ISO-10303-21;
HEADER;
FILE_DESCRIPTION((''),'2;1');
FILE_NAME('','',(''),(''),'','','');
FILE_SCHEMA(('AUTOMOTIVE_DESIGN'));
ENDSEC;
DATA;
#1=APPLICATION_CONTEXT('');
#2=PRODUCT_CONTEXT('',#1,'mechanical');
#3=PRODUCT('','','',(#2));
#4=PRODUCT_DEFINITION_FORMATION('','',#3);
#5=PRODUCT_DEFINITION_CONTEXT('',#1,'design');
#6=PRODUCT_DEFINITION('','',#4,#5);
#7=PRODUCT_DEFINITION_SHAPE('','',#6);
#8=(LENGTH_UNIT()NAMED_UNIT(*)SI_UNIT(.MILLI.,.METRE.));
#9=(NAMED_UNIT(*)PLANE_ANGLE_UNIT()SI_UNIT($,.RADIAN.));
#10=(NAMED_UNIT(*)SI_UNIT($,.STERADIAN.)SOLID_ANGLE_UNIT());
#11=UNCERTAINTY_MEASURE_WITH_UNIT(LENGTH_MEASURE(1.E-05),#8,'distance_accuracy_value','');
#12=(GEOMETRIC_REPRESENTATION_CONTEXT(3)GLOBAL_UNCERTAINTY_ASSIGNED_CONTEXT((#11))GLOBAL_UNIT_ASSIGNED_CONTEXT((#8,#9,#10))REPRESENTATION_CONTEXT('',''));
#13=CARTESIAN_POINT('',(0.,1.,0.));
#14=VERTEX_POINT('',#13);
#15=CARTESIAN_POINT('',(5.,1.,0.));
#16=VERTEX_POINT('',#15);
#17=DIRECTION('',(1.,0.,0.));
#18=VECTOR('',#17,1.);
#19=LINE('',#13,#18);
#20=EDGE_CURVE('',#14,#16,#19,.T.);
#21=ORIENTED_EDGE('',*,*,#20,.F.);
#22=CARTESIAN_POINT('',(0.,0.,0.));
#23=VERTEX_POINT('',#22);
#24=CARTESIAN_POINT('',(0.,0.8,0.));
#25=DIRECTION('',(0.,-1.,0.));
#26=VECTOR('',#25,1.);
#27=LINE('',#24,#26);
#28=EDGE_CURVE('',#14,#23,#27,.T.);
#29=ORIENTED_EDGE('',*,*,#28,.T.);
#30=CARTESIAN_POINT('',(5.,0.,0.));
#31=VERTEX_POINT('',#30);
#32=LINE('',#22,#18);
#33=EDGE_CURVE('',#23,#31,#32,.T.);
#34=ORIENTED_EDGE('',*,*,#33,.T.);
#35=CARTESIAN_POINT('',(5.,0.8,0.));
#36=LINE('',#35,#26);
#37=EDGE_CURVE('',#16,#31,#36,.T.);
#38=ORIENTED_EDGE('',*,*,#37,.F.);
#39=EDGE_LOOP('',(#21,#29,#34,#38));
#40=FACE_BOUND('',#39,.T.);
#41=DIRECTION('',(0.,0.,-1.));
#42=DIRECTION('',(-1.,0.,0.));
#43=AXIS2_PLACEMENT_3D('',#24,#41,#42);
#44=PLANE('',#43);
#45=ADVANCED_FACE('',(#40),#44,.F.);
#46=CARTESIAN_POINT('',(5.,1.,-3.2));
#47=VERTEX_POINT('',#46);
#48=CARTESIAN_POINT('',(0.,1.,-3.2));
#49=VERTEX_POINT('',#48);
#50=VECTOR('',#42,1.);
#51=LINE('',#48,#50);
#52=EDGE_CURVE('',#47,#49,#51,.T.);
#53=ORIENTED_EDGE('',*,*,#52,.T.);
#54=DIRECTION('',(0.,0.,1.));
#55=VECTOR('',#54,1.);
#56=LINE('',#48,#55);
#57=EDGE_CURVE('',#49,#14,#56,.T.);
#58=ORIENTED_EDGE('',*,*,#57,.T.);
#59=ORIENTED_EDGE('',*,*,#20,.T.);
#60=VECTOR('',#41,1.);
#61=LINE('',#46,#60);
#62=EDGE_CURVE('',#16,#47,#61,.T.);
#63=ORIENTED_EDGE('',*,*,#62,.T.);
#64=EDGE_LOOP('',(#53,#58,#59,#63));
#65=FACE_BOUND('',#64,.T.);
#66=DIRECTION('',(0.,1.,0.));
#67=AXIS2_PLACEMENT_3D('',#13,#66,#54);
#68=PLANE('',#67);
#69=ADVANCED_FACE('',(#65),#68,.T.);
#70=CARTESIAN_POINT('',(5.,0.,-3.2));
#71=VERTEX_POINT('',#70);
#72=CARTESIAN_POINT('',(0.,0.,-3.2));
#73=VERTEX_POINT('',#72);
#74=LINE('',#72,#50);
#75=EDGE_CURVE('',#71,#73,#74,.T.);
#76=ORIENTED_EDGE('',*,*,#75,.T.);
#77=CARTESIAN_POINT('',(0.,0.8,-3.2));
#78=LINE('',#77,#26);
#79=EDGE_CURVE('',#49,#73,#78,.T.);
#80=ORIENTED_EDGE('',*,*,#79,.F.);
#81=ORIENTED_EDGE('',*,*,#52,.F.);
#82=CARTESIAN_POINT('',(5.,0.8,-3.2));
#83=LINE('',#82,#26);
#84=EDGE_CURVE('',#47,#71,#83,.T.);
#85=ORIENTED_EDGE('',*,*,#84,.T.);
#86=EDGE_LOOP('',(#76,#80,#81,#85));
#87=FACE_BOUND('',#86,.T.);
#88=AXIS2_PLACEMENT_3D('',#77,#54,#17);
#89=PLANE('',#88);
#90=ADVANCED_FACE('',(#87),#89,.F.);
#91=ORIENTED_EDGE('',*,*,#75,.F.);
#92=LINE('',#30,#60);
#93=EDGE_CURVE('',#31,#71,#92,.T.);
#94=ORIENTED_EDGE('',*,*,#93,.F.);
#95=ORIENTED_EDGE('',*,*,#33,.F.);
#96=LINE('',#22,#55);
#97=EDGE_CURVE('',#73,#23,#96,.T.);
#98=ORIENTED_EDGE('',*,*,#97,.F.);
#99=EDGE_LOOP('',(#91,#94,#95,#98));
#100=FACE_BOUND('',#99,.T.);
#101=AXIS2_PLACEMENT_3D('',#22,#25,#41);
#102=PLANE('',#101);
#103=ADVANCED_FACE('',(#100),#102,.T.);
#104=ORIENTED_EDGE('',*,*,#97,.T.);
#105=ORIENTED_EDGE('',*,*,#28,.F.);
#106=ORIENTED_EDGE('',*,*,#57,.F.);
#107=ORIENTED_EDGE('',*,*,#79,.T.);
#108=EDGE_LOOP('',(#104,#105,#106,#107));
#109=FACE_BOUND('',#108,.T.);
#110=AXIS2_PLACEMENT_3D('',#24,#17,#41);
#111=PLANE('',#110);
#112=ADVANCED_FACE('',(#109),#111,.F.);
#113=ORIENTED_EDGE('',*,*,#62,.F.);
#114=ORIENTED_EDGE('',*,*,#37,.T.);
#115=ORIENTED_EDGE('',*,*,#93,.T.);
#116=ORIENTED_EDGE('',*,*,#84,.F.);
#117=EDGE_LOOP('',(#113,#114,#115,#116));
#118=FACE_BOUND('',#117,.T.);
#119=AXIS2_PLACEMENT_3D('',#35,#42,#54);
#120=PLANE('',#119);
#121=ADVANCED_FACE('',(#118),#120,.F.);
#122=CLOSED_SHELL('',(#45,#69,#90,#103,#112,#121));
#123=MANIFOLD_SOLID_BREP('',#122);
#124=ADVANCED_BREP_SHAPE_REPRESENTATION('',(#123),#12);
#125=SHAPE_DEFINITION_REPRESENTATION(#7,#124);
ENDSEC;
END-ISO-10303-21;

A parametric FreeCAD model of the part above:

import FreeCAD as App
import Part
import Sketcher

V = App.Vector


def add_polygon(sketch, points):
    """Adds a closed chain of lines whose ends are joined by coincident constraints."""
    first, n = sketch.GeometryCount, len(points)
    for a, b in zip(points, points[1:] + points[:1]):
        sketch.addGeometry(Part.LineSegment(App.Vector(*a, 0), App.Vector(*b, 0)), False)
    for i in range(n):
        sketch.addConstraint(Sketcher.Constraint("Coincident", first + i, 2, first + (i + 1) % n, 1))

doc = App.newDocument("Part")
body = doc.addObject("PartDesign::Body", "Body")

sketch1 = body.newObject("Sketcher::SketchObject", "Sketch")
sketch1.AttachmentSupport = (doc.getObject("XZ_Plane"), [""])
sketch1.MapMode = "FlatFace"
add_polygon(sketch1, [(0, -3.2), (0, 0), (5, 0), (5, -3.2)])
sketch1.addConstraint(Sketcher.Constraint("Vertical", 0))
sketch1.addConstraint(Sketcher.Constraint("Horizontal", 1))
sketch1.addConstraint(Sketcher.Constraint("Vertical", 2))
sketch1.addConstraint(Sketcher.Constraint("Horizontal", 3))
sketch1.addConstraint(Sketcher.Constraint("Coincident", 0, 2, -1, 1))
sketch1.addConstraint(Sketcher.Constraint("DistanceX", 1, 1, 1, 2, 5.0))
sketch1.addConstraint(Sketcher.Constraint("DistanceY", 0, 1, 0, 2, 3.2))
pad1 = body.newObject("PartDesign::Pad", "Pad")
pad1.Profile = sketch1
pad1.Length = 0.8
pad1.Reversed = True

sketch2 = body.newObject("Sketcher::SketchObject", "Sketch001")
sketch2.AttachmentSupport = (doc.getObject("XZ_Plane"), [""])
sketch2.MapMode = "FlatFace"
sketch2.AttachmentOffset = App.Placement(V(0, 0, -0.8), App.Rotation())
add_polygon(sketch2, [(0, -3.2), (0, 0), (5, 0), (5, -3.2)])
sketch2.addConstraint(Sketcher.Constraint("Vertical", 0))
sketch2.addConstraint(Sketcher.Constraint("Horizontal", 1))
sketch2.addConstraint(Sketcher.Constraint("Vertical", 2))
sketch2.addConstraint(Sketcher.Constraint("Horizontal", 3))
sketch2.addConstraint(Sketcher.Constraint("Coincident", 0, 2, -1, 1))
sketch2.addConstraint(Sketcher.Constraint("DistanceX", 1, 1, 1, 2, 5.0))
sketch2.addConstraint(Sketcher.Constraint("DistanceY", 0, 1, 0, 2, 3.2))
pad2 = body.newObject("PartDesign::Pad", "Pad001")
pad2.Profile = sketch2
pad2.Length = 0.2
pad2.Reversed = True

doc.recompute()
